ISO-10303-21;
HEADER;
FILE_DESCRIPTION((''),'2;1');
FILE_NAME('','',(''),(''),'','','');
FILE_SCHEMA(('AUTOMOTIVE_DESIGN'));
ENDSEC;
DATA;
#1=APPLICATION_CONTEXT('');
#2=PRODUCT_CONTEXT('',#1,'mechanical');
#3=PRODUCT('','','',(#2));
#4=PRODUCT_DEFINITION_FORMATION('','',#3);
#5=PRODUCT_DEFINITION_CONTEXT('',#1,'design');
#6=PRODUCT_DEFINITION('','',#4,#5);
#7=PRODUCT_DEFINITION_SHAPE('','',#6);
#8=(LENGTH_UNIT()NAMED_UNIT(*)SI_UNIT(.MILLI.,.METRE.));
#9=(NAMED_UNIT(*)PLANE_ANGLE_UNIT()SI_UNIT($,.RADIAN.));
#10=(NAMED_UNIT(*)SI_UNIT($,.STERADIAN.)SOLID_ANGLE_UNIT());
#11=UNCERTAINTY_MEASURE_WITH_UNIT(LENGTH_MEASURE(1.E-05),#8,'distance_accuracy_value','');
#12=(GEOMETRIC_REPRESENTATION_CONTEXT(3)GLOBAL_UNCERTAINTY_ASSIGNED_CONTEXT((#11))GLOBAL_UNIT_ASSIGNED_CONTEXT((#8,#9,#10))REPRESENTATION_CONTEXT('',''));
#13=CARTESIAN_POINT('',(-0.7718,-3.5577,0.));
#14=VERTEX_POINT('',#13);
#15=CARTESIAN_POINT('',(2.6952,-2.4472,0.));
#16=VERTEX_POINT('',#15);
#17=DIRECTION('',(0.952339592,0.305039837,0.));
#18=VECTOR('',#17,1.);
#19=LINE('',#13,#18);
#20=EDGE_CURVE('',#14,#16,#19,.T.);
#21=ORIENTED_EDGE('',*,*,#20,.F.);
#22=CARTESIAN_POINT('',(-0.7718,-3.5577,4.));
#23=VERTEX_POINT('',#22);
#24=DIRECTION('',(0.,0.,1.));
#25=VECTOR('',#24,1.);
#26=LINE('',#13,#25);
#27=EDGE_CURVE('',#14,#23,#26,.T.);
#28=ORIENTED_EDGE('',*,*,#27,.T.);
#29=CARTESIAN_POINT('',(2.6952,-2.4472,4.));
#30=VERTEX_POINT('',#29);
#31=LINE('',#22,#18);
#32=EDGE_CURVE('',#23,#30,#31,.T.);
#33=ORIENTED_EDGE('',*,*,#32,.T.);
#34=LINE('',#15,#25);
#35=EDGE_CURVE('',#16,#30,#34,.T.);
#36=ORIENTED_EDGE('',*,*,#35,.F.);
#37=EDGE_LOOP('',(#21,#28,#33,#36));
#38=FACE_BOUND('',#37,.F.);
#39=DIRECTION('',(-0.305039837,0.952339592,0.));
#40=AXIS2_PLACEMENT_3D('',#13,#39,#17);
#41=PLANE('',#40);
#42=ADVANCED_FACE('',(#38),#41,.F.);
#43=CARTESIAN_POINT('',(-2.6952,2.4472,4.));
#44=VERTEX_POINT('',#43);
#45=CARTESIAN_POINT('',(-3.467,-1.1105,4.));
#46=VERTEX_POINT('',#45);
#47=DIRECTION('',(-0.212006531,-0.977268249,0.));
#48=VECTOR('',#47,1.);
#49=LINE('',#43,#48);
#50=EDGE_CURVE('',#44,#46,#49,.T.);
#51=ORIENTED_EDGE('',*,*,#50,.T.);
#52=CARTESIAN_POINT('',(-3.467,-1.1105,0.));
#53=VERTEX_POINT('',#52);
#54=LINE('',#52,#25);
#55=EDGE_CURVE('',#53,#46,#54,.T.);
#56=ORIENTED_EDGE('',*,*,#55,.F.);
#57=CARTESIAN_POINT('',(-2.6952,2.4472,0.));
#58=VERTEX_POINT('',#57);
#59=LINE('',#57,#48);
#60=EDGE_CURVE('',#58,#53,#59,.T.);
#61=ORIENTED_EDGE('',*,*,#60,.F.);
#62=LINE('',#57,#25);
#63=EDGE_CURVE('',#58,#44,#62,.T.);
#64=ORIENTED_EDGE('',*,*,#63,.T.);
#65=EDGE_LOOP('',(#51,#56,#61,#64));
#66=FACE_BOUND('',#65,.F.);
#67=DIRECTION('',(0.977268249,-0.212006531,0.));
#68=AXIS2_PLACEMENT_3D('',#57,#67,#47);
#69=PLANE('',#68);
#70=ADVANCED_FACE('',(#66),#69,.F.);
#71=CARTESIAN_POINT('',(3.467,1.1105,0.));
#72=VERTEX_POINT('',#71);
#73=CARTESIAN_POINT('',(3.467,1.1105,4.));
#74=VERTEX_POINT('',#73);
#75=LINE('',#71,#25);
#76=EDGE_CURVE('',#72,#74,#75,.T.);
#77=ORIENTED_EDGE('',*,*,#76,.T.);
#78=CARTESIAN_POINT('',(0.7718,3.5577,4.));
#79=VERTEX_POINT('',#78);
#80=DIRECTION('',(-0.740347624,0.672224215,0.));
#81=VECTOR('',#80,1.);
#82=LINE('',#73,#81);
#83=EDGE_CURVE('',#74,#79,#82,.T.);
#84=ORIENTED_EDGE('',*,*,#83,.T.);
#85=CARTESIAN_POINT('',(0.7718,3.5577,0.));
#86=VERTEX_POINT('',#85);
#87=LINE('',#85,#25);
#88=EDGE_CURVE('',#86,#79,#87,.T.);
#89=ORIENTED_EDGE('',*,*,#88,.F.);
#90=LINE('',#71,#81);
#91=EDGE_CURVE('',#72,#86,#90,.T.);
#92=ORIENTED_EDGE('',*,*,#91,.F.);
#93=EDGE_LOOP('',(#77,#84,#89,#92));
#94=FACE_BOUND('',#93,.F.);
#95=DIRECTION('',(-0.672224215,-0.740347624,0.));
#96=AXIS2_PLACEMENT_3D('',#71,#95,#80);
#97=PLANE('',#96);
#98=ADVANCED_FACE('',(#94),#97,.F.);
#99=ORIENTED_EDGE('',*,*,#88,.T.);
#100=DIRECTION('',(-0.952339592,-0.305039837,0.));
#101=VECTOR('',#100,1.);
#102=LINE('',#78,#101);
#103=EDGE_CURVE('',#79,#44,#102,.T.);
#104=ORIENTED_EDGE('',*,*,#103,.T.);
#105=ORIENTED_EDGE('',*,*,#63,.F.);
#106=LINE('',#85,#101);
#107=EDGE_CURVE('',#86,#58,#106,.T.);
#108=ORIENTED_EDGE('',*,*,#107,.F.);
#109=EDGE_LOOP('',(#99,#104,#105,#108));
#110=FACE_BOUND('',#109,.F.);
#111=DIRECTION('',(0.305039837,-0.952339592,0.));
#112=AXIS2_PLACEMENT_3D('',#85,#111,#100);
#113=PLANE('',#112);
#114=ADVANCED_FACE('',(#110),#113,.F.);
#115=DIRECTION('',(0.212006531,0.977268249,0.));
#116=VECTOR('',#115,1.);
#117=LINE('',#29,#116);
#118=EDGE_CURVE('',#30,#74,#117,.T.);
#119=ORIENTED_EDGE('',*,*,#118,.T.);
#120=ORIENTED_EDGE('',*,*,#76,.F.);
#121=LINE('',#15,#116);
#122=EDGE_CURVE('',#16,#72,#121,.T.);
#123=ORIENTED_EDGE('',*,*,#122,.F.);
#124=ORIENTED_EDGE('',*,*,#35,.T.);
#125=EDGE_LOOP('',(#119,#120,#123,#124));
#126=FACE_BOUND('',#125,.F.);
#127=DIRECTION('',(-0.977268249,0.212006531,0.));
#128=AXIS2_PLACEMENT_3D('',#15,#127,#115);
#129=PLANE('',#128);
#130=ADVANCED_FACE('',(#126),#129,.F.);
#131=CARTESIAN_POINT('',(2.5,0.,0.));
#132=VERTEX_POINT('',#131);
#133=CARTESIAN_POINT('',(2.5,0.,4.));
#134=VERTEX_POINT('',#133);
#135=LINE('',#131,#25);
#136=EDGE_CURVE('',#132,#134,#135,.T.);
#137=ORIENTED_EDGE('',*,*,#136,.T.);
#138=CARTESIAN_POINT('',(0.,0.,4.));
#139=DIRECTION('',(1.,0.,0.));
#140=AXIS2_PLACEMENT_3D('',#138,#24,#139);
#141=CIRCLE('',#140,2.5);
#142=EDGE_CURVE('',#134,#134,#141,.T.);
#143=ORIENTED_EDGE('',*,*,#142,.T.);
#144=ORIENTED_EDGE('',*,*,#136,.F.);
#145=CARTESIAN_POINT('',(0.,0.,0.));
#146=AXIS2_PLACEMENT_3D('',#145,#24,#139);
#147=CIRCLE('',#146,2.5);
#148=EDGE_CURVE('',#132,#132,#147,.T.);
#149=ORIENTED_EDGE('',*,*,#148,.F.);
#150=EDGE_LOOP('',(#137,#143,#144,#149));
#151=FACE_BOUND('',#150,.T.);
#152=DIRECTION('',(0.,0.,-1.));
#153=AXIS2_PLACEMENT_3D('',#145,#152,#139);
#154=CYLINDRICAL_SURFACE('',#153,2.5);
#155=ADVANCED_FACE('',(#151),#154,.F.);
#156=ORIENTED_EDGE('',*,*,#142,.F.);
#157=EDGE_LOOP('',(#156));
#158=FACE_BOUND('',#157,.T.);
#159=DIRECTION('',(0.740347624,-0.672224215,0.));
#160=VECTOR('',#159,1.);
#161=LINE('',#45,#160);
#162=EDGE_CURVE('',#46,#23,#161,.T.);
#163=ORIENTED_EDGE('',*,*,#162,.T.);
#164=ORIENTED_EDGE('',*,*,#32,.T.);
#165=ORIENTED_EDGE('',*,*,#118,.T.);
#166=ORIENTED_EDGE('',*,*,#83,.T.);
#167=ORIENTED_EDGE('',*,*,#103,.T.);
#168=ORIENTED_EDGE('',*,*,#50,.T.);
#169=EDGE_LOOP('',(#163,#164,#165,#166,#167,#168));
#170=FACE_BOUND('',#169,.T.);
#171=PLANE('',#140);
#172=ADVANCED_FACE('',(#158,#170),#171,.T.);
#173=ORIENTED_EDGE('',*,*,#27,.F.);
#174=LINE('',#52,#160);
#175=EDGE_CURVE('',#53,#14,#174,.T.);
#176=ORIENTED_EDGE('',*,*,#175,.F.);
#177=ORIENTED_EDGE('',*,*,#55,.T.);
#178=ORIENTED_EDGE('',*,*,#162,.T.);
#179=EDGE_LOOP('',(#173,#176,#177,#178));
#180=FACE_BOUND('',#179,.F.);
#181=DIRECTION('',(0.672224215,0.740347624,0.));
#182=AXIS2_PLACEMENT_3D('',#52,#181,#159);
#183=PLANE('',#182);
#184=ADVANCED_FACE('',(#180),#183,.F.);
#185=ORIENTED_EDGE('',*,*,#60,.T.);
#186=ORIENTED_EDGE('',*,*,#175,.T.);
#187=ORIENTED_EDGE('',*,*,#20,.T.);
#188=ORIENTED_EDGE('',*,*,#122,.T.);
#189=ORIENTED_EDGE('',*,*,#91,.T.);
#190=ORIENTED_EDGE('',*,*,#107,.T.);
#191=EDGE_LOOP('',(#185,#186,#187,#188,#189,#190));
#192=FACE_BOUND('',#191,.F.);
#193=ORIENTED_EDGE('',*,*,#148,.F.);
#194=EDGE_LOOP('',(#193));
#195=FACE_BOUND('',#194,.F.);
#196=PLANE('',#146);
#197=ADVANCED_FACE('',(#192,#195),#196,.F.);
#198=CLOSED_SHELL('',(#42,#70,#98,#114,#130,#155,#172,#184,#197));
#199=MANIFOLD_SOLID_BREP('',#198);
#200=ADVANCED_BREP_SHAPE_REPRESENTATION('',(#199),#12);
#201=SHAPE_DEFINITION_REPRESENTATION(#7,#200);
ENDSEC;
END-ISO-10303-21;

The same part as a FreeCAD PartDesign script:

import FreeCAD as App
import Part
import Sketcher
Q = App.Units.Quantity

doc = App.newDocument("Part")
body = doc.addObject("PartDesign::Body", "Body")

# Sketch on XY plane
sketch1 = body.newObject("Sketcher::SketchObject", "Sketch")
sketch1.AttachmentSupport = (doc.getObject("XY_Plane"), [""])
sketch1.MapMode = "FlatFace"
sketch1.addGeometry(Part.LineSegment(App.Vector(-0.8, -3.6, 0), App.Vector(2.7, -2.4, 0)), False)
sketch1.addGeometry(Part.LineSegment(App.Vector(2.7, -2.4, 0), App.Vector(3.5, 1.1, 0)), False)
sketch1.addGeometry(Part.LineSegment(App.Vector(3.5, 1.1, 0), App.Vector(0.8, 3.6, 0)), False)
sketch1.addGeometry(Part.LineSegment(App.Vector(0.8, 3.6, 0), App.Vector(-2.7, 2.4, 0)), False)
sketch1.addGeometry(Part.LineSegment(App.Vector(-2.7, 2.4, 0), App.Vector(-3.5, -1.1, 0)), False)
sketch1.addGeometry(Part.LineSegment(App.Vector(-3.5, -1.1, 0), App.Vector(-0.8, -3.6, 0)), False)
sketch1.addConstraint(Sketcher.Constraint("Coincident", 0, 2, 1, 1))
sketch1.addConstraint(Sketcher.Constraint("Coincident", 1, 2, 2, 1))
sketch1.addConstraint(Sketcher.Constraint("Coincident", 2, 2, 3, 1))
sketch1.addConstraint(Sketcher.Constraint("Coincident", 3, 2, 4, 1))
sketch1.addConstraint(Sketcher.Constraint("Coincident", 4, 2, 5, 1))
sketch1.addConstraint(Sketcher.Constraint("Coincident", 5, 2, 0, 1))
sketch1.addConstraint(Sketcher.Constraint("Symmetric", 0, 2, 3, 2, -1, 1))
sketch1.addConstraint(Sketcher.Constraint("Symmetric", 1, 2, 4, 2, -1, 1))
sketch1.addConstraint(Sketcher.Constraint("Symmetric", 2, 2, 5, 2, -1, 1))
sketch1.addConstraint(Sketcher.Constraint("Equal", 0, 1))
sketch1.addConstraint(Sketcher.Constraint("Equal", 1, 2))
sketch1.addConstraint(Sketcher.Constraint("Angle", 0, Q("17.7606 deg")))
sketch1.addConstraint(Sketcher.Constraint("Angle", 1, Q("77.76 deg")))
sketch1.addConstraint(Sketcher.Constraint("Angle", 2, Q("137.761 deg")))
sketch1.addConstraint(Sketcher.Constraint("DistanceX", -1, 1, 1, 2, 3.467))
pad1 = body.newObject("PartDesign::Pad", "Pad")
pad1.Profile = sketch1
pad1.Length = 4

# Sketch on XY plane
sketch2 = body.newObject("Sketcher::SketchObject", "Sketch001")
sketch2.AttachmentSupport = (doc.getObject("XY_Plane"), [""])
sketch2.MapMode = "FlatFace"
sketch2.addGeometry(Part.Circle(App.Vector(0, 0, 0), App.Vector(0, 0, 1), 2.5), False)
sketch2.addConstraint(Sketcher.Constraint("Coincident", 0, 3, -1, 1))
sketch2.addConstraint(Sketcher.Constraint("Diameter", 0, 5.0))
pocket1 = body.newObject("PartDesign::Pocket", "Pocket")
pocket1.Profile = sketch2
pocket1.Length = 4
pocket1.Reversed = True

doc.recompute()
